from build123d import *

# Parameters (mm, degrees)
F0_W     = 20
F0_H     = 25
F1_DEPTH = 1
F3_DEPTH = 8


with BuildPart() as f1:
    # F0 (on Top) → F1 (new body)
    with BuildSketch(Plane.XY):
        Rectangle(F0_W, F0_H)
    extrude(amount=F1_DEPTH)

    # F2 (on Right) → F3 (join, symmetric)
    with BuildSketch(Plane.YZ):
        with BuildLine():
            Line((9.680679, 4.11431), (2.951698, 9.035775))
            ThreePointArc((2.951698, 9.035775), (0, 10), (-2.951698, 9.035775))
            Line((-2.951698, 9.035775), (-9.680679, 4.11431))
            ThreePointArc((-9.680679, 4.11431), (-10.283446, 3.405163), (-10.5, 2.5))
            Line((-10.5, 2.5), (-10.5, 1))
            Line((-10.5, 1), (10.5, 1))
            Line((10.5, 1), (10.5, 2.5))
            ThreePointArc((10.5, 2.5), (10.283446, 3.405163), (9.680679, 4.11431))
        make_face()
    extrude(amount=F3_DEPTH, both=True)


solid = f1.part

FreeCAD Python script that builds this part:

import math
import FreeCAD as App
import Part
import Sketcher


def add_polygon(sketch, points):
    """Adds a closed chain of lines whose ends are joined by coincident constraints."""
    first, n = sketch.GeometryCount, len(points)
    for a, b in zip(points, points[1:] + points[:1]):
        sketch.addGeometry(Part.LineSegment(App.Vector(*a, 0), App.Vector(*b, 0)), False)
    for i in range(n):
        sketch.addConstraint(Sketcher.Constraint("Coincident", first + i, 2, first + (i + 1) % n, 1))

doc = App.newDocument("Part")
body = doc.addObject("PartDesign::Body", "Body")

# Sketch on XY plane
sketch1 = body.newObject("Sketcher::SketchObject", "Sketch")
sketch1.AttachmentSupport = (doc.getObject("XY_Plane"), [""])
sketch1.MapMode = "FlatFace"
add_polygon(sketch1, [(-10, 12), (-10, -12), (10, -12), (10, 12)])  # lines 0-3
sketch1.addConstraint([
    Sketcher.Constraint("Vertical", 0),
    Sketcher.Constraint("Horizontal", 1),
    Sketcher.Constraint("Vertical", 2),
    Sketcher.Constraint("Horizontal", 3),
    Sketcher.Constraint("Symmetric", 0, 2, 2, 2, -1, 1),
    Sketcher.Constraint("DistanceX", 1, 1, 1, 2, 20.0),
    Sketcher.Constraint("DistanceY", 0, 2, 0, 1, 25.0),
])
pad1 = body.newObject("PartDesign::Pad", "Pad")
pad1.Profile = sketch1
pad1.Length = 1

# Sketch on YZ plane
sketch2 = body.newObject("Sketcher::SketchObject", "Sketch001")
sketch2.AttachmentSupport = (doc.getObject("YZ_Plane"), [""])
sketch2.MapMode = "FlatFace"
sketch2.addGeometry([
    Part.LineSegment(App.Vector(9.7, 4.1, 0), App.Vector(3, 9, 0)),  # 0
    Part.ArcOfCircle(Part.Circle(App.Vector(0, 5, 0), App.Vector(0, 0, 1), 5), math.radians(54), math.radians(126)),  # 1
    Part.LineSegment(App.Vector(-3, 9, 0), App.Vector(-9.7, 4.1, 0)),  # 2
    Part.ArcOfCircle(Part.Circle(App.Vector(-8.5, 2.5, 0), App.Vector(0, 0, 1), 2), math.radians(126), math.radians(180)),  # 3
    Part.LineSegment(App.Vector(-10.5, 2.5, 0), App.Vector(-10.5, 1, 0)),  # 4
    Part.LineSegment(App.Vector(-10.5, 1, 0), App.Vector(10.5, 1, 0)),  # 5
    Part.LineSegment(App.Vector(10.5, 1, 0), App.Vector(10.5, 2.5, 0)),  # 6
    Part.ArcOfCircle(Part.Circle(App.Vector(8.5, 2.5, 0), App.Vector(0, 0, 1), 2), math.radians(0), math.radians(54)),  # 7
], False)
sketch2.addConstraint([
    Sketcher.Constraint("Tangent", 0, 2, 1, 1),
    Sketcher.Constraint("Tangent", 1, 2, 2, 1),
    Sketcher.Constraint("Tangent", 2, 2, 3, 1),
    Sketcher.Constraint("Tangent", 3, 2, 4, 1),
    Sketcher.Constraint("Coincident", 4, 2, 5, 1),
    Sketcher.Constraint("Coincident", 5, 2, 6, 1),
    Sketcher.Constraint("Tangent", 6, 2, 7, 1),
    Sketcher.Constraint("Tangent", 7, 2, 0, 1),
    Sketcher.Constraint("Vertical", 4),
    Sketcher.Constraint("Horizontal", 5),
    Sketcher.Constraint("Vertical", 6),
    Sketcher.Constraint("Equal", 3, 7),
    Sketcher.Constraint("Symmetric", 3, 3, 7, 3, -2),
    Sketcher.Constraint("PointOnObject", 1, 3, -2),
    Sketcher.Constraint("Radius", 1, 5.0),
    Sketcher.Constraint("Radius", 3, 2.0),
    Sketcher.Constraint("DistanceX", 5, 1, 5, 2, 21.0),
    Sketcher.Constraint("DistanceY", 4, 2, 4, 1, 1.5),
    Sketcher.Constraint("DistanceY", -1, 1, 1, 3, 5.0),
    Sketcher.Constraint("DistanceY", -1, 1, 4, 2, 1.0),
])
pad2 = body.newObject("PartDesign::Pad", "Pad001")
pad2.Profile = sketch2
pad2.Length = 16
pad2.Midplane = True

doc.recompute()
